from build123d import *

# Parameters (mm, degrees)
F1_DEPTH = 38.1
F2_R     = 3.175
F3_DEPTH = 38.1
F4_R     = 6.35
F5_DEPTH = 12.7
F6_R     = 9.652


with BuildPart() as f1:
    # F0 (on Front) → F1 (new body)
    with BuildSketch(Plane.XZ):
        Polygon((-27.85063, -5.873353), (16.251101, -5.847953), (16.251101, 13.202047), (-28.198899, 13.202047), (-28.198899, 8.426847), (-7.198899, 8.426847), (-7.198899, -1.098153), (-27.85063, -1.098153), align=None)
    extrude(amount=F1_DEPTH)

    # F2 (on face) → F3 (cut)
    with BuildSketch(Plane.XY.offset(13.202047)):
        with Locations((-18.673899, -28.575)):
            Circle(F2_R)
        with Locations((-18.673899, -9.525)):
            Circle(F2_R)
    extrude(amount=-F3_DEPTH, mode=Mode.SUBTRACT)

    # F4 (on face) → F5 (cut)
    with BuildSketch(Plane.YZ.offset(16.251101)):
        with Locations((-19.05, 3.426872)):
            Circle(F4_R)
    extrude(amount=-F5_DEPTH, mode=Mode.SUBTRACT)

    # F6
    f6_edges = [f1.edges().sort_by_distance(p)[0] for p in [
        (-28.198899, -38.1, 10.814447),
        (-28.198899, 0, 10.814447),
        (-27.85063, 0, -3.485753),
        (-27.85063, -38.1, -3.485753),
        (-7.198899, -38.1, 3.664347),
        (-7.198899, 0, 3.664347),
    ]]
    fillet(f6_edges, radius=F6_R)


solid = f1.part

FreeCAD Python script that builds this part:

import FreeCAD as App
import Part
import Sketcher

V = App.Vector
Q = App.Units.Quantity


def edges_at(feature, points):
    """Names of the edges that pass closest to the given points."""
    edges = feature.Shape.Edges
    near = lambda p: min(range(len(edges)), key=lambda i: edges[i].distToShape(Part.Vertex(*p))[0])
    return sorted({f"Edge{near(p) + 1}" for p in points})

doc = App.newDocument("Part")
body = doc.addObject("PartDesign::Body", "Body")

# Sketch on XZ plane
sketch1 = body.newObject("Sketcher::SketchObject", "Sketch")
sketch1.AttachmentSupport = (doc.getObject("XZ_Plane"), [""])
sketch1.MapMode = "FlatFace"
sketch1.addGeometry([
    Part.LineSegment(V(-27.9, -5.9, 0), V(16.3, -5.8, 0)),  # 0
    Part.LineSegment(V(16.3, -5.8, 0), V(16.3, 13.2, 0)),  # 1
    Part.LineSegment(V(16.3, 13.2, 0), V(-28.2, 13.2, 0)),  # 2
    Part.LineSegment(V(-28.2, 13.2, 0), V(-28.2, 8.4, 0)),  # 3
    Part.LineSegment(V(-28.2, 8.4, 0), V(-7.2, 8.4, 0)),  # 4
    Part.LineSegment(V(-7.2, 8.4, 0), V(-7.2, -1.1, 0)),  # 5
    Part.LineSegment(V(-7.2, -1.1, 0), V(-27.9, -1.1, 0)),  # 6
    Part.LineSegment(V(-27.9, -1.1, 0), V(-27.9, -5.9, 0)),  # 7
], False)
sketch1.addConstraint([
    Sketcher.Constraint("Coincident", 0, 2, 1, 1),
    Sketcher.Constraint("Coincident", 1, 2, 2, 1),
    Sketcher.Constraint("Coincident", 2, 2, 3, 1),
    Sketcher.Constraint("Coincident", 3, 2, 4, 1),
    Sketcher.Constraint("Coincident", 4, 2, 5, 1),
    Sketcher.Constraint("Coincident", 5, 2, 6, 1),
    Sketcher.Constraint("Coincident", 6, 2, 7, 1),
    Sketcher.Constraint("Coincident", 7, 2, 0, 1),
    Sketcher.Constraint("Vertical", 1),
    Sketcher.Constraint("Horizontal", 2),
    Sketcher.Constraint("Vertical", 3),
    Sketcher.Constraint("Horizontal", 4),
    Sketcher.Constraint("Vertical", 5),
    Sketcher.Constraint("Horizontal", 6),
    Sketcher.Constraint("Vertical", 7),
    Sketcher.Constraint("Equal", 3, 7),
    Sketcher.Constraint("DistanceX", 2, 2, 2, 1, Q("1.75 in")),
    Sketcher.Constraint("DistanceY", 1, 1, 1, 2, Q("0.75 in")),
    Sketcher.Constraint("DistanceY", 3, 2, 3, 1, Q("0.188 in")),
    Sketcher.Constraint("DistanceY", 5, 2, 5, 1, Q("0.375 in")),
    Sketcher.Constraint("DistanceX", 4, 1, 4, 2, Q("21 mm")),
    Sketcher.Constraint("DistanceX", 6, 2, 6, 1, Q("20.651731 mm")),
    Sketcher.Constraint("DistanceX", -1, 1, 0, 2, Q("16.251101 mm")),
    Sketcher.Constraint("DistanceY", 0, 2, -1, 1, Q("5.847953 mm")),
])
pad1 = body.newObject("PartDesign::Pad", "Pad")
pad1.Profile = sketch1
pad1.Length = Q("1.5 in")

# Sketch on XY plane
sketch2 = body.newObject("Sketcher::SketchObject", "Sketch001")
sketch2.AttachmentSupport = (doc.getObject("XY_Plane"), [""])
sketch2.MapMode = "FlatFace"
sketch2.AttachmentOffset = App.Placement(V(0, 0, 13.202047), App.Rotation())
sketch2.addGeometry([
    Part.Circle(V(-18.7, -28.6, 0), V(0, 0, 1), 3.2),
    Part.Circle(V(-18.7, -9.5, 0), V(0, 0, 1), 3.2),
], False)
sketch2.addConstraint([
    Sketcher.Constraint("Equal", 0, 1),
    Sketcher.Constraint("Vertical", 0, 3, 1, 3),
    Sketcher.Constraint("Diameter", 0, Q("0.25 in")),
    Sketcher.Constraint("DistanceY", 0, 3, 1, 3, Q("0.75 in")),
    Sketcher.Constraint("DistanceY", 0, 3, -1, 1, Q("1.125 in")),
    Sketcher.Constraint("DistanceX", 0, 3, -1, 1, Q("18.673899 mm")),
])
pocket1 = body.newObject("PartDesign::Pocket", "Pocket")
pocket1.Profile = sketch2
pocket1.Length = Q("1.5 in")

# Sketch on YZ plane
sketch3 = body.newObject("Sketcher::SketchObject", "Sketch002")
sketch3.AttachmentSupport = (doc.getObject("YZ_Plane"), [""])
sketch3.MapMode = "FlatFace"
sketch3.AttachmentOffset = App.Placement(V(0, 0, 16.251101), App.Rotation())
sketch3.addGeometry(Part.Circle(V(-19, 3, 0), V(0, 0, 1), 6), False)
sketch3.addConstraint([
    Sketcher.Constraint("Diameter", 0, Q("0.5 in")),
    Sketcher.Constraint("DistanceX", 0, 3, -1, 1, Q("0.75 in")),
    Sketcher.Constraint("DistanceY", -1, 1, 0, 3, Q("3.426872 mm")),
])
pocket2 = body.newObject("PartDesign::Pocket", "Pocket001")
pocket2.Profile = sketch3
pocket2.Length = Q("0.5 in")
doc.recompute()

fillet = body.newObject("PartDesign::Fillet", "Fillet")
fillet.Base = (pocket2, edges_at(pocket2, [
    (-28.199, -38.1, 10.814),
    (-28.199, 0, 10.814),
    (-27.851, 0, -3.486),
    (-27.851, -38.1, -3.486),
    (-7.199, -38.1, 3.664),
    (-7.199, 0, 3.664),
]))
fillet.Radius = Q("0.38 in")

doc.recompute()
